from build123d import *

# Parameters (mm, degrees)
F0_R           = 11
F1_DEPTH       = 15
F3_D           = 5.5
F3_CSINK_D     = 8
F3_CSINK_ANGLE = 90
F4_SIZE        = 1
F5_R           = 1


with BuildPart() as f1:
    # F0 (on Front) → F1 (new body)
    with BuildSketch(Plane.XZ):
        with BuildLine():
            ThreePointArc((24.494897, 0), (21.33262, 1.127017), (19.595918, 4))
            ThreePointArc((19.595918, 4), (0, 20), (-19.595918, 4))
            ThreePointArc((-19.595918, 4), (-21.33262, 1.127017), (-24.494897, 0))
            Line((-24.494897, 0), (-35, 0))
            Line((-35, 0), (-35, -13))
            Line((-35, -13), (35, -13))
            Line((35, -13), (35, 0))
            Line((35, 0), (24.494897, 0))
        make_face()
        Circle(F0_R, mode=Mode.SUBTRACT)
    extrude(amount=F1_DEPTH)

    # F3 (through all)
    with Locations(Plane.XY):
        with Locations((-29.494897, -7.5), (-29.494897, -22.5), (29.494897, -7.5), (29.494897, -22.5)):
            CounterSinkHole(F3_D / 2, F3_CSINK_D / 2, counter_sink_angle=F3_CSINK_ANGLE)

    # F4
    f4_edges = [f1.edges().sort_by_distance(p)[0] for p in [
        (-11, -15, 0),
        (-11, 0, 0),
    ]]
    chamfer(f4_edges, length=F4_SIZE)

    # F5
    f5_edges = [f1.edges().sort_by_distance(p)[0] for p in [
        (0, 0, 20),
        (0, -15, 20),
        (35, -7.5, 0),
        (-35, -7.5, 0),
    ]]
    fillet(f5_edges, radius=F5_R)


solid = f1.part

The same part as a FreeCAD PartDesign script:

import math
import FreeCAD as App
import Part
import Sketcher
Q = App.Units.Quantity


def edges_at(feature, points):
    """Names of the edges that pass closest to the given points."""
    edges = feature.Shape.Edges
    near = lambda p: min(range(len(edges)), key=lambda i: edges[i].distToShape(Part.Vertex(*p))[0])
    return sorted({f"Edge{near(p) + 1}" for p in points})

doc = App.newDocument("Part")
body = doc.addObject("PartDesign::Body", "Body")

sketch1 = body.newObject("Sketcher::SketchObject", "Sketch")
sketch1.AttachmentSupport = (doc.getObject("XZ_Plane"), [""])
sketch1.MapMode = "FlatFace"
sketch1.addGeometry(Part.ArcOfCircle(Part.Circle(App.Vector(24.494899, 5.000001, 0), App.Vector(0, 0, 1), 5.000001), math.radians(-168.463029), math.radians(-90.000018)), False)
sketch1.addGeometry(Part.ArcOfCircle(Part.Circle(App.Vector(0, 0, 0), App.Vector(0, 0, 1), 20), math.radians(11.536959), math.radians(168.463041)), False)
sketch1.addGeometry(Part.ArcOfCircle(Part.Circle(App.Vector(-24.494899, 5.000001, 0), App.Vector(0, 0, 1), 5.000001), math.radians(-89.999982), math.radians(-11.536971)), False)
sketch1.addGeometry(Part.LineSegment(App.Vector(-24.494897, 0, 0), App.Vector(-35, 0, 0)), False)
sketch1.addGeometry(Part.LineSegment(App.Vector(-35, 0, 0), App.Vector(-35, -13, 0)), False)
sketch1.addGeometry(Part.LineSegment(App.Vector(-35, -13, 0), App.Vector(35, -13, 0)), False)
sketch1.addGeometry(Part.LineSegment(App.Vector(35, -13, 0), App.Vector(35, 0, 0)), False)
sketch1.addGeometry(Part.LineSegment(App.Vector(35, 0, 0), App.Vector(24.494897, 0, 0)), False)
sketch1.addGeometry(Part.Circle(App.Vector(0, 0, 0), App.Vector(0, 0, 1), 11), False)
sketch1.addConstraint(Sketcher.Constraint("Tangent", 0, 1, 1, 1))
sketch1.addConstraint(Sketcher.Constraint("Tangent", 1, 2, 2, 2))
sketch1.addConstraint(Sketcher.Constraint("Tangent", 2, 1, 3, 1))
sketch1.addConstraint(Sketcher.Constraint("Coincident", 3, 2, 4, 1))
sketch1.addConstraint(Sketcher.Constraint("Coincident", 4, 2, 5, 1))
sketch1.addConstraint(Sketcher.Constraint("Coincident", 5, 2, 6, 1))
sketch1.addConstraint(Sketcher.Constraint("Coincident", 6, 2, 7, 1))
sketch1.addConstraint(Sketcher.Constraint("Tangent", 7, 2, 0, 2))
sketch1.addConstraint(Sketcher.Constraint("Horizontal", 3))
sketch1.addConstraint(Sketcher.Constraint("Vertical", 4))
sketch1.addConstraint(Sketcher.Constraint("Horizontal", 5))
sketch1.addConstraint(Sketcher.Constraint("Vertical", 6))
sketch1.addConstraint(Sketcher.Constraint("Horizontal", 7))
sketch1.addConstraint(Sketcher.Constraint("Coincident", 1, 3, -1, 1))
sketch1.addConstraint(Sketcher.Constraint("Coincident", 8, 3, -1, 1))
sketch1.addConstraint(Sketcher.Constraint("Equal", 0, 2))
sketch1.addConstraint(Sketcher.Constraint("Symmetric", 3, 2, 6, 2, -1, 1))
sketch1.addConstraint(Sketcher.Constraint("PointOnObject", 2, 1, -1))
sketch1.addConstraint(Sketcher.Constraint("Diameter", 8, Q("22 mm")))
sketch1.addConstraint(Sketcher.Constraint("Radius", 0, Q("5.000001 mm")))
sketch1.addConstraint(Sketcher.Constraint("Radius", 1, Q("20 mm")))
sketch1.addConstraint(Sketcher.Constraint("DistanceX", 5, 1, 5, 2, Q("70 mm")))
sketch1.addConstraint(Sketcher.Constraint("DistanceY", 4, 2, 4, 1, Q("13 mm")))
pad1 = body.newObject("PartDesign::Pad", "Pad")
pad1.Profile = sketch1
pad1.Length = 15

sketch2 = body.newObject("Sketcher::SketchObject", "Sketch001")
sketch2.AttachmentSupport = (doc.getObject("XY_Plane"), [""])
sketch2.MapMode = "FlatFace"
sketch2.addGeometry(Part.Circle(App.Vector(-29.494897, -7.5, 0), App.Vector(0, 0, 1), 2.75), False)
sketch2.addGeometry(Part.Circle(App.Vector(-29.494897, -22.5, 0), App.Vector(0, 0, 1), 2.75), False)
sketch2.addGeometry(Part.Circle(App.Vector(29.494897, -7.5, 0), App.Vector(0, 0, 1), 2.75), False)
sketch2.addGeometry(Part.Circle(App.Vector(29.494897, -22.5, 0), App.Vector(0, 0, 1), 2.75), False)
sketch2.addConstraint(Sketcher.Constraint("Equal", 0, 1))
sketch2.addConstraint(Sketcher.Constraint("Equal", 1, 2))
sketch2.addConstraint(Sketcher.Constraint("Equal", 2, 3))
sketch2.addConstraint(Sketcher.Constraint("Symmetric", 0, 3, 2, 3, -2))
sketch2.addConstraint(Sketcher.Constraint("Symmetric", 1, 3, 3, 3, -2))
sketch2.addConstraint(Sketcher.Constraint("Vertical", 0, 3, 1, 3))
sketch2.addConstraint(Sketcher.Constraint("Diameter", 0, Q("5.5 mm")))
sketch2.addConstraint(Sketcher.Constraint("DistanceY", 1, 3, 0, 3, Q("15 mm")))
sketch2.addConstraint(Sketcher.Constraint("DistanceY", 0, 3, -1, 1, Q("7.5 mm")))
sketch2.addConstraint(Sketcher.Constraint("DistanceX", 0, 3, -1, 1, Q("29.494897 mm")))
doc.recompute()
hole = body.newObject("PartDesign::Hole", "Hole")
hole.Profile = sketch2
hole.ThreadType = "None"
hole.Diameter = 5.5
hole.DepthType = "ThroughAll"
hole.HoleCutType = "Countersink"
hole.HoleCutDiameter = 8
hole.HoleCutCountersinkAngle = 90
doc.recompute()

chamfer = body.newObject("PartDesign::Chamfer", "Chamfer")
chamfer.Base = (hole, edges_at(hole, [(-11, -15, 0), (-11, 0, 0)]))
chamfer.Size = 1
doc.recompute()

fillet = body.newObject("PartDesign::Fillet", "Fillet")
fillet.Base = (chamfer, edges_at(chamfer, [
    (0, 0, 20),
    (0, -15, 20),
    (35, -7.5, 0),
    (-35, -7.5, 0),
]))
fillet.Radius = 1

doc.recompute()
